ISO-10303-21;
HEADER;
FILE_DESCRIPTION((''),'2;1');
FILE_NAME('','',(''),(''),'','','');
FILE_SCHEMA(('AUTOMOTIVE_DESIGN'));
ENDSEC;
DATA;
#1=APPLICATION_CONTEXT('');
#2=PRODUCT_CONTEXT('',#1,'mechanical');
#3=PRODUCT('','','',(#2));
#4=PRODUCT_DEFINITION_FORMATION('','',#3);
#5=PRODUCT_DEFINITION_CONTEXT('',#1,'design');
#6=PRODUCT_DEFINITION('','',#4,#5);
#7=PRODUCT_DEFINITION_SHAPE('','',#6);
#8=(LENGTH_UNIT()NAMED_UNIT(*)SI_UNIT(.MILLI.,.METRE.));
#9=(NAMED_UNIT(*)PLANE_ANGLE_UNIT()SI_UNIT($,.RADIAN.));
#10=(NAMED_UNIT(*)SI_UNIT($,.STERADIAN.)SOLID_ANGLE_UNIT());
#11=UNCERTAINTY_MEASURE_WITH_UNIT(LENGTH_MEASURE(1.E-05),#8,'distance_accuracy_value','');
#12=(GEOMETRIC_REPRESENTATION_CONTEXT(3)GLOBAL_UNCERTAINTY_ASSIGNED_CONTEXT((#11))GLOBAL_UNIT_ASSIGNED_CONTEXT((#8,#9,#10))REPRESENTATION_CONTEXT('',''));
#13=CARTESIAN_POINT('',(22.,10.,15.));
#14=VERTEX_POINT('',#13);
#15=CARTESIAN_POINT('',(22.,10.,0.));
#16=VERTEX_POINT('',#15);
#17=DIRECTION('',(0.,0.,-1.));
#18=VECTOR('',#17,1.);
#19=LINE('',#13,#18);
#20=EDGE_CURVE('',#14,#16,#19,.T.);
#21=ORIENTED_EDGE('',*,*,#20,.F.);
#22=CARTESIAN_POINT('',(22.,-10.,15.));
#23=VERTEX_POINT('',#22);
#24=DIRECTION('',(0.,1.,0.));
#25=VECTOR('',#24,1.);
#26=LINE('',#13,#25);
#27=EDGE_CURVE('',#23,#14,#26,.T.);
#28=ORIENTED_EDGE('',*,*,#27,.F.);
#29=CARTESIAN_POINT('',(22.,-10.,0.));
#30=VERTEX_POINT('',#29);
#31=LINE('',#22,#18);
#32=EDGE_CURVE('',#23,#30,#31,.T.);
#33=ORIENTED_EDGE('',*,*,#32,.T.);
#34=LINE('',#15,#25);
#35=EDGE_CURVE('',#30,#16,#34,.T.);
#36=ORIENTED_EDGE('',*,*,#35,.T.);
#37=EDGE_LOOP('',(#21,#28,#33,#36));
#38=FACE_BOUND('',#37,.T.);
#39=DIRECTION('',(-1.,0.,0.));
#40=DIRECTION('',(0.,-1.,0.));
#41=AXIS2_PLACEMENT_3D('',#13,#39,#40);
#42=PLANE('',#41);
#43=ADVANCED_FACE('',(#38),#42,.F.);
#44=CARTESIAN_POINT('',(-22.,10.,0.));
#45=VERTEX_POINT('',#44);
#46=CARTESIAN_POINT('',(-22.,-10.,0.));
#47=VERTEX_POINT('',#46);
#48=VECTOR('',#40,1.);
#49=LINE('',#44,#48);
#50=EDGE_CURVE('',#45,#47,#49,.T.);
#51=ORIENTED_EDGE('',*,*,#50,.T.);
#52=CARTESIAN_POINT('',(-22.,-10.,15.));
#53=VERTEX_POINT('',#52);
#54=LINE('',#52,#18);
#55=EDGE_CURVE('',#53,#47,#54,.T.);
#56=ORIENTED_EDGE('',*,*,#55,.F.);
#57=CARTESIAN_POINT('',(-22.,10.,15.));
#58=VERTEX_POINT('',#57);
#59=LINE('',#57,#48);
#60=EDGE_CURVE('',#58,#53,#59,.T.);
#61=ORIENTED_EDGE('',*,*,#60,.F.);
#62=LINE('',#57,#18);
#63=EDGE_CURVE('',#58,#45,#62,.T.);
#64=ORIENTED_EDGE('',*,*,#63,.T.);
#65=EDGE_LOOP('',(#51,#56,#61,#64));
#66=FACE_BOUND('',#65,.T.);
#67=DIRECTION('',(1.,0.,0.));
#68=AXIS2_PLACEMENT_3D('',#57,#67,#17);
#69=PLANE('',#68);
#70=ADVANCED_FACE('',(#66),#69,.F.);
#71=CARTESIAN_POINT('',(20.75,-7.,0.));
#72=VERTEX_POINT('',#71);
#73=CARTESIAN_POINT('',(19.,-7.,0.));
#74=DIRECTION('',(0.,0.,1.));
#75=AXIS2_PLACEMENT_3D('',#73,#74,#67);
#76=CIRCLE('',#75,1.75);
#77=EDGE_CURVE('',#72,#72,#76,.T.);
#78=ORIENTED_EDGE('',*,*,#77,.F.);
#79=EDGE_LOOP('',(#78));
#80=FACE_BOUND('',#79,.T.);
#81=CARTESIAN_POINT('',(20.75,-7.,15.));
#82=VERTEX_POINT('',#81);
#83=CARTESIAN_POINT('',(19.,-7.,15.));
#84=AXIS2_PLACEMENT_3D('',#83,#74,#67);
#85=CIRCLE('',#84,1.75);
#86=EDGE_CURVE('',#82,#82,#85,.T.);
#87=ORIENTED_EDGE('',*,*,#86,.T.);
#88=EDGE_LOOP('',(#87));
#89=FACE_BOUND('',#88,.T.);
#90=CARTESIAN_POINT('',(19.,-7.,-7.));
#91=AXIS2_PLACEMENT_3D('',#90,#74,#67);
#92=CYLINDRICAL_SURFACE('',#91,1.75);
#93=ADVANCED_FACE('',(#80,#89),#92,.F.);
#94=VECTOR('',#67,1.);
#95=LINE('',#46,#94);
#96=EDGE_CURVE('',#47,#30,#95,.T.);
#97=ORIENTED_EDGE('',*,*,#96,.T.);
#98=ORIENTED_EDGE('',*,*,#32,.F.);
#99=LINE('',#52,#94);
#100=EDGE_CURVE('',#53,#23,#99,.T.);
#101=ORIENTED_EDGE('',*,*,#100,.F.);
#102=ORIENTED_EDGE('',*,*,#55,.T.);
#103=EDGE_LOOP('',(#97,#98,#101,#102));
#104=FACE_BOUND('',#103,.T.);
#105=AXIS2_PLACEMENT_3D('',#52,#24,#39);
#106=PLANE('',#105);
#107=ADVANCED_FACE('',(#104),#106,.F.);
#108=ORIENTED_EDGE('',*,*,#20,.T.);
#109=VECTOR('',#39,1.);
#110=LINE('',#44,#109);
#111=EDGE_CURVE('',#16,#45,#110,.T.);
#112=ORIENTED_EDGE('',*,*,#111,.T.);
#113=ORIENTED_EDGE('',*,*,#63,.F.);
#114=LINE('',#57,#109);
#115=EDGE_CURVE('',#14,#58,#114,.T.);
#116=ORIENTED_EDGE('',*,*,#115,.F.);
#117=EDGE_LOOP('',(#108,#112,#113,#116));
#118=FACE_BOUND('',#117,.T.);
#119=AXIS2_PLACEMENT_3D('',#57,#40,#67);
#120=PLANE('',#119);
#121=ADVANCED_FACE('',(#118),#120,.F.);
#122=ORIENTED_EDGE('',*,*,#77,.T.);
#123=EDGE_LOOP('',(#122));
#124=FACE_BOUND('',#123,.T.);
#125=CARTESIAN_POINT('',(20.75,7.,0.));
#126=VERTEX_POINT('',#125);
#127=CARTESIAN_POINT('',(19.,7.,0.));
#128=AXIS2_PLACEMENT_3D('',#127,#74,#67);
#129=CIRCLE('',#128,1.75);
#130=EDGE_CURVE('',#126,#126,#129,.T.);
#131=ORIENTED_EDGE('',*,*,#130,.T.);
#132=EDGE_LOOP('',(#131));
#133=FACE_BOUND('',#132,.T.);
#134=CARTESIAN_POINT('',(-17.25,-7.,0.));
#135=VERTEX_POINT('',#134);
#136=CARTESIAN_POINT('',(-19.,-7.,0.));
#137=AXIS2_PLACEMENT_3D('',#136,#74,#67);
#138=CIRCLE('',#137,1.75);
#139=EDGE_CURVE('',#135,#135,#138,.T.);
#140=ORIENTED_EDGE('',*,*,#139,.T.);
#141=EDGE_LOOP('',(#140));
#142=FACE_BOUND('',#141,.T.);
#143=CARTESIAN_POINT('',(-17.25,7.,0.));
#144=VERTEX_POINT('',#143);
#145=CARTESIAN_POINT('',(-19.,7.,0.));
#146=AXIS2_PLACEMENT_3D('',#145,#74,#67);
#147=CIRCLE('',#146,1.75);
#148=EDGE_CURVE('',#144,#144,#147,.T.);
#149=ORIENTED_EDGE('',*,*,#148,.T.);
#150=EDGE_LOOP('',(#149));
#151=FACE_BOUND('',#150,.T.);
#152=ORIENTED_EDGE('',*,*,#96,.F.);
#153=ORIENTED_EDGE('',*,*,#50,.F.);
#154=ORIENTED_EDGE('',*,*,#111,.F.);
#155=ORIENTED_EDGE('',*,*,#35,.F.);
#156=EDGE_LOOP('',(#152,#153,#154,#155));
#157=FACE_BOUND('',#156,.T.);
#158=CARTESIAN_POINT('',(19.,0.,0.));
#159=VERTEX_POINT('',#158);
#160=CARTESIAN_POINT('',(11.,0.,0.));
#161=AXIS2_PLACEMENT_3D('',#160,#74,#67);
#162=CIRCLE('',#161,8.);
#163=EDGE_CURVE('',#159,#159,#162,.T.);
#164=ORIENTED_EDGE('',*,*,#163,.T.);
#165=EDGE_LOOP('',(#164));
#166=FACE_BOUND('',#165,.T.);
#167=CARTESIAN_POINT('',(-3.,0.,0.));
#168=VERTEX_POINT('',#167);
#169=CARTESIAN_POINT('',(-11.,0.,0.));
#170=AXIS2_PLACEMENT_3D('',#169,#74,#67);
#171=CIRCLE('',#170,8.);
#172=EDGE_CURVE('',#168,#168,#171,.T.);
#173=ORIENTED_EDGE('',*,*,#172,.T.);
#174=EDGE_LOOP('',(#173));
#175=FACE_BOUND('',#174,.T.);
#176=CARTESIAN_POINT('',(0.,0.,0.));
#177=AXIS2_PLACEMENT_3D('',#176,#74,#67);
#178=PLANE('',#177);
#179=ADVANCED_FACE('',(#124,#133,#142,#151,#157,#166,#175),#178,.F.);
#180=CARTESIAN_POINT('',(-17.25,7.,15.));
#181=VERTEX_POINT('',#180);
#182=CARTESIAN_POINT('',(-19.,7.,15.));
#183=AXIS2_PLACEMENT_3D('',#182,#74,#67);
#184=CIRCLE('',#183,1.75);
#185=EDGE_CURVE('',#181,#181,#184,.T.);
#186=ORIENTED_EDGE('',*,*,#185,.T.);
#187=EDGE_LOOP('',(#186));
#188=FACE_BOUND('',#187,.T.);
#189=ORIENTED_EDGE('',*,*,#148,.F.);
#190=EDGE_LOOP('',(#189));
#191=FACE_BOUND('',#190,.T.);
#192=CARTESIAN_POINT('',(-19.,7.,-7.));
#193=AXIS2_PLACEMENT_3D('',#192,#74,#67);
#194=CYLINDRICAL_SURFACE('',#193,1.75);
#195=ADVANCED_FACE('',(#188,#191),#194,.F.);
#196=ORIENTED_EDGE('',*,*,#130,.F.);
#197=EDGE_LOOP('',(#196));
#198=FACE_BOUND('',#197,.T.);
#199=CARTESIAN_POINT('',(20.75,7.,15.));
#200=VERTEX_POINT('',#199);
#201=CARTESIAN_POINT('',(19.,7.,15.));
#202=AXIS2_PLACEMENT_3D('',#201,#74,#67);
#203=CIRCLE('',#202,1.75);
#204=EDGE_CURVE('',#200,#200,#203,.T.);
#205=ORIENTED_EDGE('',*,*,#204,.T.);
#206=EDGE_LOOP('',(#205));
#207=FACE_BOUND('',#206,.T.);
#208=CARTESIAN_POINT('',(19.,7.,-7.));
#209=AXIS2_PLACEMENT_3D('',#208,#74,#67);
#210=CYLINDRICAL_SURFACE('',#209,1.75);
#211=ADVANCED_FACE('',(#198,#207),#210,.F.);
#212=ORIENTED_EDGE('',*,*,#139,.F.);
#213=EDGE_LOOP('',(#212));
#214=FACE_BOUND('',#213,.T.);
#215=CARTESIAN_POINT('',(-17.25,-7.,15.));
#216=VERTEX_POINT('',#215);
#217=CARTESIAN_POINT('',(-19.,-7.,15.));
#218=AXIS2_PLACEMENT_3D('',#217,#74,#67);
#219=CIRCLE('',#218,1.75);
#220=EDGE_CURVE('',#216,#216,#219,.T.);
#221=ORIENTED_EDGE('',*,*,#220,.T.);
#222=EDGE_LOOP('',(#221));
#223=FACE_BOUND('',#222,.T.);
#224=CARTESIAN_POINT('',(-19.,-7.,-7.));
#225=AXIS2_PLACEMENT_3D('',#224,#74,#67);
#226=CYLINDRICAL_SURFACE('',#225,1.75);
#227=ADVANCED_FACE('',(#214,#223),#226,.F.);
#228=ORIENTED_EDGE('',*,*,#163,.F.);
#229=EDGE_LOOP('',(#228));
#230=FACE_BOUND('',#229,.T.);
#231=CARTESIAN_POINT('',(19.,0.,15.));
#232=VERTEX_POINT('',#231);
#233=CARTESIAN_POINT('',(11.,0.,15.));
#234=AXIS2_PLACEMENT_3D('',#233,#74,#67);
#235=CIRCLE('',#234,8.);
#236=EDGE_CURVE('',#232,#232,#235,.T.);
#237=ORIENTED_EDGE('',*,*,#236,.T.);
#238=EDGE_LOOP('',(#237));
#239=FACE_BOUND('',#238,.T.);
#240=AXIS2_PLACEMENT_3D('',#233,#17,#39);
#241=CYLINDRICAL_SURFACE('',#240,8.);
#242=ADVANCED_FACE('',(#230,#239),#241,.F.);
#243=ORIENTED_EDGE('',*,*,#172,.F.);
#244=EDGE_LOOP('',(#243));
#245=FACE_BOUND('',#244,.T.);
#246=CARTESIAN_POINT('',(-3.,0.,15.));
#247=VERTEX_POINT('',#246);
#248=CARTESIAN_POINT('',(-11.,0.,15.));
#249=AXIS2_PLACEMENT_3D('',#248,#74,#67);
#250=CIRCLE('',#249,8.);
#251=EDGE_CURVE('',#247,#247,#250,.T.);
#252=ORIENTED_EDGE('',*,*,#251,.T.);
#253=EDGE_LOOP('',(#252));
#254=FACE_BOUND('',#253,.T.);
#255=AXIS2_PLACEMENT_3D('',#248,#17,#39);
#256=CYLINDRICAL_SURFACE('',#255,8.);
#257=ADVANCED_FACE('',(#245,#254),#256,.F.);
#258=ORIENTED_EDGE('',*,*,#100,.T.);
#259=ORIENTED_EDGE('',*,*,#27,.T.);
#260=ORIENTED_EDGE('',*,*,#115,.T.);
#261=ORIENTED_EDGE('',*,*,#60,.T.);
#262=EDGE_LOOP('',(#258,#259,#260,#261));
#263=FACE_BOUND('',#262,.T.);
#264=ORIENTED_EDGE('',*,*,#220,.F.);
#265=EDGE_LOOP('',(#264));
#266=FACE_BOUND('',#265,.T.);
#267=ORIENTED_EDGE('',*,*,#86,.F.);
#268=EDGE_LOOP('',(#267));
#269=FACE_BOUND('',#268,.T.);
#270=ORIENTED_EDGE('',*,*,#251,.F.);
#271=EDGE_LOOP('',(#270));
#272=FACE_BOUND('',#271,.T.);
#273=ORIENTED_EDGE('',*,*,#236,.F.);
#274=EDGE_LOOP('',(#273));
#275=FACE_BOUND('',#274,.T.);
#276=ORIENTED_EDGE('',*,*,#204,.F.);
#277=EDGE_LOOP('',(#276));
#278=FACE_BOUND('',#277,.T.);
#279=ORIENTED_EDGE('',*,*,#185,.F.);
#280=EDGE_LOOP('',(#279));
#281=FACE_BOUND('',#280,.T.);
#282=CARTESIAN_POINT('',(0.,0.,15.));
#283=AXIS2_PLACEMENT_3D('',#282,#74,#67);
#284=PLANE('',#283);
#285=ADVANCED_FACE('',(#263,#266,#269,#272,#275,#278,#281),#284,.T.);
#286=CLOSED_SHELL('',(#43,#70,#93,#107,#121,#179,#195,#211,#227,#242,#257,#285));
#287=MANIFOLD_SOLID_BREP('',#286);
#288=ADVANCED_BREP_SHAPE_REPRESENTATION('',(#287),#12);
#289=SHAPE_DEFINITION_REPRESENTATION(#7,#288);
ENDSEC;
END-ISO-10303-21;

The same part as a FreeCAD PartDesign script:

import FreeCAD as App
import Part
import Sketcher
Q = App.Units.Quantity


def add_polygon(sketch, points):
    """Adds a closed chain of lines whose ends are joined by coincident constraints."""
    first, n = sketch.GeometryCount, len(points)
    for a, b in zip(points, points[1:] + points[:1]):
        sketch.addGeometry(Part.LineSegment(App.Vector(*a, 0), App.Vector(*b, 0)), False)
    for i in range(n):
        sketch.addConstraint(Sketcher.Constraint("Coincident", first + i, 2, first + (i + 1) % n, 1))

doc = App.newDocument("Part")
params = doc.addObject("Spreadsheet::Sheet", "Params")
for row, (alias, value) in enumerate([
    ("sketch1_diameter", "16 mm"),
    ("sketch1_width", "44 mm"),
    ("sketch1_height", "20 mm"),
    ("pad1_length", "15 mm"),
    ("sketch2_diameter", "3.5 mm"),
    ("pocket1_length", "22 mm"),
], start=1):
    params.set(f"A{row}", alias)
    params.set(f"B{row}", "=" + value)
    params.setAlias(f"B{row}", alias)

body = doc.addObject("PartDesign::Body", "Body")

# Sketch on XY plane
sketch1 = body.newObject("Sketcher::SketchObject", "Sketch")
sketch1.AttachmentSupport = (doc.getObject("XY_Plane"), [""])
sketch1.MapMode = "FlatFace"
add_polygon(sketch1, [(-22, 10), (-22, -10), (22, -10), (22, 10)])  # lines 0-3
sketch1.addGeometry(Part.Circle(App.Vector(-11, 0, 0), App.Vector(0, 0, 1), 8), False)  # 4
sketch1.addGeometry(Part.Circle(App.Vector(11, 0, 0), App.Vector(0, 0, 1), 8), False)  # 5
sketch1.addConstraint(Sketcher.Constraint("Vertical", 0))
sketch1.addConstraint(Sketcher.Constraint("Horizontal", 1))
sketch1.addConstraint(Sketcher.Constraint("Vertical", 2))
sketch1.addConstraint(Sketcher.Constraint("Horizontal", 3))
sketch1.addConstraint(Sketcher.Constraint("Equal", 4, 5))
sketch1.addConstraint(Sketcher.Constraint("Symmetric", 4, 3, 5, 3, -1, 1))
sketch1.addConstraint(Sketcher.Constraint("Symmetric", 0, 2, 2, 2, -1, 1))
sketch1.addConstraint(Sketcher.Constraint("PointOnObject", 4, 3, -1))
sketch1.addConstraint(Sketcher.Constraint("Diameter", 4, Q("16 mm")))
sketch1.addConstraint(Sketcher.Constraint("DistanceX", 1, 1, 1, 2, Q("44 mm")))
sketch1.addConstraint(Sketcher.Constraint("DistanceY", 0, 2, 0, 1, Q("20 mm")))
sketch1.addConstraint(Sketcher.Constraint("DistanceX", 4, 3, -1, 1, Q("11 mm")))
sketch1.setExpression("Constraints[12]", "Params.sketch1_diameter")
sketch1.setExpression("Constraints[13]", "Params.sketch1_width")
sketch1.setExpression("Constraints[14]", "Params.sketch1_height")
pad1 = body.newObject("PartDesign::Pad", "Pad")
pad1.Profile = sketch1
pad1.setExpression("Length", "Params.pad1_length")

# Sketch on XY plane
sketch2 = body.newObject("Sketcher::SketchObject", "Sketch001")
sketch2.AttachmentSupport = (doc.getObject("XY_Plane"), [""])
sketch2.MapMode = "FlatFace"
sketch2.AttachmentOffset = App.Placement(App.Vector(0, 0, 15), App.Rotation())
sketch2.addGeometry(Part.Circle(App.Vector(-19, 7, 0), App.Vector(0, 0, 1), 1.75), False)
sketch2.addGeometry(Part.Circle(App.Vector(19, -7, 0), App.Vector(0, 0, 1), 1.75), False)
sketch2.addGeometry(Part.Circle(App.Vector(19, 7, 0), App.Vector(0, 0, 1), 1.75), False)
sketch2.addGeometry(Part.Circle(App.Vector(-19, -7, 0), App.Vector(0, 0, 1), 1.75), False)
sketch2.addConstraint(Sketcher.Constraint("Equal", 0, 1))
sketch2.addConstraint(Sketcher.Constraint("Equal", 1, 2))
sketch2.addConstraint(Sketcher.Constraint("Equal", 2, 3))
sketch2.addConstraint(Sketcher.Constraint("Symmetric", 0, 3, 1, 3, -1, 1))
sketch2.addConstraint(Sketcher.Constraint("Symmetric", 2, 3, 3, 3, -1, 1))
sketch2.addConstraint(Sketcher.Constraint("Symmetric", 0, 3, 2, 3, -2))
sketch2.addConstraint(Sketcher.Constraint("Diameter", 0, Q("3.5 mm")))
sketch2.addConstraint(Sketcher.Constraint("DistanceX", 0, 3, -1, 1, Q("19 mm")))
sketch2.addConstraint(Sketcher.Constraint("DistanceY", -1, 1, 0, 3, Q("7 mm")))
sketch2.setExpression("Constraints[6]", "Params.sketch2_diameter")
pocket1 = body.newObject("PartDesign::Pocket", "Pocket")
pocket1.Profile = sketch2
pocket1.setExpression("Length", "Params.pocket1_length")

doc.recompute()
